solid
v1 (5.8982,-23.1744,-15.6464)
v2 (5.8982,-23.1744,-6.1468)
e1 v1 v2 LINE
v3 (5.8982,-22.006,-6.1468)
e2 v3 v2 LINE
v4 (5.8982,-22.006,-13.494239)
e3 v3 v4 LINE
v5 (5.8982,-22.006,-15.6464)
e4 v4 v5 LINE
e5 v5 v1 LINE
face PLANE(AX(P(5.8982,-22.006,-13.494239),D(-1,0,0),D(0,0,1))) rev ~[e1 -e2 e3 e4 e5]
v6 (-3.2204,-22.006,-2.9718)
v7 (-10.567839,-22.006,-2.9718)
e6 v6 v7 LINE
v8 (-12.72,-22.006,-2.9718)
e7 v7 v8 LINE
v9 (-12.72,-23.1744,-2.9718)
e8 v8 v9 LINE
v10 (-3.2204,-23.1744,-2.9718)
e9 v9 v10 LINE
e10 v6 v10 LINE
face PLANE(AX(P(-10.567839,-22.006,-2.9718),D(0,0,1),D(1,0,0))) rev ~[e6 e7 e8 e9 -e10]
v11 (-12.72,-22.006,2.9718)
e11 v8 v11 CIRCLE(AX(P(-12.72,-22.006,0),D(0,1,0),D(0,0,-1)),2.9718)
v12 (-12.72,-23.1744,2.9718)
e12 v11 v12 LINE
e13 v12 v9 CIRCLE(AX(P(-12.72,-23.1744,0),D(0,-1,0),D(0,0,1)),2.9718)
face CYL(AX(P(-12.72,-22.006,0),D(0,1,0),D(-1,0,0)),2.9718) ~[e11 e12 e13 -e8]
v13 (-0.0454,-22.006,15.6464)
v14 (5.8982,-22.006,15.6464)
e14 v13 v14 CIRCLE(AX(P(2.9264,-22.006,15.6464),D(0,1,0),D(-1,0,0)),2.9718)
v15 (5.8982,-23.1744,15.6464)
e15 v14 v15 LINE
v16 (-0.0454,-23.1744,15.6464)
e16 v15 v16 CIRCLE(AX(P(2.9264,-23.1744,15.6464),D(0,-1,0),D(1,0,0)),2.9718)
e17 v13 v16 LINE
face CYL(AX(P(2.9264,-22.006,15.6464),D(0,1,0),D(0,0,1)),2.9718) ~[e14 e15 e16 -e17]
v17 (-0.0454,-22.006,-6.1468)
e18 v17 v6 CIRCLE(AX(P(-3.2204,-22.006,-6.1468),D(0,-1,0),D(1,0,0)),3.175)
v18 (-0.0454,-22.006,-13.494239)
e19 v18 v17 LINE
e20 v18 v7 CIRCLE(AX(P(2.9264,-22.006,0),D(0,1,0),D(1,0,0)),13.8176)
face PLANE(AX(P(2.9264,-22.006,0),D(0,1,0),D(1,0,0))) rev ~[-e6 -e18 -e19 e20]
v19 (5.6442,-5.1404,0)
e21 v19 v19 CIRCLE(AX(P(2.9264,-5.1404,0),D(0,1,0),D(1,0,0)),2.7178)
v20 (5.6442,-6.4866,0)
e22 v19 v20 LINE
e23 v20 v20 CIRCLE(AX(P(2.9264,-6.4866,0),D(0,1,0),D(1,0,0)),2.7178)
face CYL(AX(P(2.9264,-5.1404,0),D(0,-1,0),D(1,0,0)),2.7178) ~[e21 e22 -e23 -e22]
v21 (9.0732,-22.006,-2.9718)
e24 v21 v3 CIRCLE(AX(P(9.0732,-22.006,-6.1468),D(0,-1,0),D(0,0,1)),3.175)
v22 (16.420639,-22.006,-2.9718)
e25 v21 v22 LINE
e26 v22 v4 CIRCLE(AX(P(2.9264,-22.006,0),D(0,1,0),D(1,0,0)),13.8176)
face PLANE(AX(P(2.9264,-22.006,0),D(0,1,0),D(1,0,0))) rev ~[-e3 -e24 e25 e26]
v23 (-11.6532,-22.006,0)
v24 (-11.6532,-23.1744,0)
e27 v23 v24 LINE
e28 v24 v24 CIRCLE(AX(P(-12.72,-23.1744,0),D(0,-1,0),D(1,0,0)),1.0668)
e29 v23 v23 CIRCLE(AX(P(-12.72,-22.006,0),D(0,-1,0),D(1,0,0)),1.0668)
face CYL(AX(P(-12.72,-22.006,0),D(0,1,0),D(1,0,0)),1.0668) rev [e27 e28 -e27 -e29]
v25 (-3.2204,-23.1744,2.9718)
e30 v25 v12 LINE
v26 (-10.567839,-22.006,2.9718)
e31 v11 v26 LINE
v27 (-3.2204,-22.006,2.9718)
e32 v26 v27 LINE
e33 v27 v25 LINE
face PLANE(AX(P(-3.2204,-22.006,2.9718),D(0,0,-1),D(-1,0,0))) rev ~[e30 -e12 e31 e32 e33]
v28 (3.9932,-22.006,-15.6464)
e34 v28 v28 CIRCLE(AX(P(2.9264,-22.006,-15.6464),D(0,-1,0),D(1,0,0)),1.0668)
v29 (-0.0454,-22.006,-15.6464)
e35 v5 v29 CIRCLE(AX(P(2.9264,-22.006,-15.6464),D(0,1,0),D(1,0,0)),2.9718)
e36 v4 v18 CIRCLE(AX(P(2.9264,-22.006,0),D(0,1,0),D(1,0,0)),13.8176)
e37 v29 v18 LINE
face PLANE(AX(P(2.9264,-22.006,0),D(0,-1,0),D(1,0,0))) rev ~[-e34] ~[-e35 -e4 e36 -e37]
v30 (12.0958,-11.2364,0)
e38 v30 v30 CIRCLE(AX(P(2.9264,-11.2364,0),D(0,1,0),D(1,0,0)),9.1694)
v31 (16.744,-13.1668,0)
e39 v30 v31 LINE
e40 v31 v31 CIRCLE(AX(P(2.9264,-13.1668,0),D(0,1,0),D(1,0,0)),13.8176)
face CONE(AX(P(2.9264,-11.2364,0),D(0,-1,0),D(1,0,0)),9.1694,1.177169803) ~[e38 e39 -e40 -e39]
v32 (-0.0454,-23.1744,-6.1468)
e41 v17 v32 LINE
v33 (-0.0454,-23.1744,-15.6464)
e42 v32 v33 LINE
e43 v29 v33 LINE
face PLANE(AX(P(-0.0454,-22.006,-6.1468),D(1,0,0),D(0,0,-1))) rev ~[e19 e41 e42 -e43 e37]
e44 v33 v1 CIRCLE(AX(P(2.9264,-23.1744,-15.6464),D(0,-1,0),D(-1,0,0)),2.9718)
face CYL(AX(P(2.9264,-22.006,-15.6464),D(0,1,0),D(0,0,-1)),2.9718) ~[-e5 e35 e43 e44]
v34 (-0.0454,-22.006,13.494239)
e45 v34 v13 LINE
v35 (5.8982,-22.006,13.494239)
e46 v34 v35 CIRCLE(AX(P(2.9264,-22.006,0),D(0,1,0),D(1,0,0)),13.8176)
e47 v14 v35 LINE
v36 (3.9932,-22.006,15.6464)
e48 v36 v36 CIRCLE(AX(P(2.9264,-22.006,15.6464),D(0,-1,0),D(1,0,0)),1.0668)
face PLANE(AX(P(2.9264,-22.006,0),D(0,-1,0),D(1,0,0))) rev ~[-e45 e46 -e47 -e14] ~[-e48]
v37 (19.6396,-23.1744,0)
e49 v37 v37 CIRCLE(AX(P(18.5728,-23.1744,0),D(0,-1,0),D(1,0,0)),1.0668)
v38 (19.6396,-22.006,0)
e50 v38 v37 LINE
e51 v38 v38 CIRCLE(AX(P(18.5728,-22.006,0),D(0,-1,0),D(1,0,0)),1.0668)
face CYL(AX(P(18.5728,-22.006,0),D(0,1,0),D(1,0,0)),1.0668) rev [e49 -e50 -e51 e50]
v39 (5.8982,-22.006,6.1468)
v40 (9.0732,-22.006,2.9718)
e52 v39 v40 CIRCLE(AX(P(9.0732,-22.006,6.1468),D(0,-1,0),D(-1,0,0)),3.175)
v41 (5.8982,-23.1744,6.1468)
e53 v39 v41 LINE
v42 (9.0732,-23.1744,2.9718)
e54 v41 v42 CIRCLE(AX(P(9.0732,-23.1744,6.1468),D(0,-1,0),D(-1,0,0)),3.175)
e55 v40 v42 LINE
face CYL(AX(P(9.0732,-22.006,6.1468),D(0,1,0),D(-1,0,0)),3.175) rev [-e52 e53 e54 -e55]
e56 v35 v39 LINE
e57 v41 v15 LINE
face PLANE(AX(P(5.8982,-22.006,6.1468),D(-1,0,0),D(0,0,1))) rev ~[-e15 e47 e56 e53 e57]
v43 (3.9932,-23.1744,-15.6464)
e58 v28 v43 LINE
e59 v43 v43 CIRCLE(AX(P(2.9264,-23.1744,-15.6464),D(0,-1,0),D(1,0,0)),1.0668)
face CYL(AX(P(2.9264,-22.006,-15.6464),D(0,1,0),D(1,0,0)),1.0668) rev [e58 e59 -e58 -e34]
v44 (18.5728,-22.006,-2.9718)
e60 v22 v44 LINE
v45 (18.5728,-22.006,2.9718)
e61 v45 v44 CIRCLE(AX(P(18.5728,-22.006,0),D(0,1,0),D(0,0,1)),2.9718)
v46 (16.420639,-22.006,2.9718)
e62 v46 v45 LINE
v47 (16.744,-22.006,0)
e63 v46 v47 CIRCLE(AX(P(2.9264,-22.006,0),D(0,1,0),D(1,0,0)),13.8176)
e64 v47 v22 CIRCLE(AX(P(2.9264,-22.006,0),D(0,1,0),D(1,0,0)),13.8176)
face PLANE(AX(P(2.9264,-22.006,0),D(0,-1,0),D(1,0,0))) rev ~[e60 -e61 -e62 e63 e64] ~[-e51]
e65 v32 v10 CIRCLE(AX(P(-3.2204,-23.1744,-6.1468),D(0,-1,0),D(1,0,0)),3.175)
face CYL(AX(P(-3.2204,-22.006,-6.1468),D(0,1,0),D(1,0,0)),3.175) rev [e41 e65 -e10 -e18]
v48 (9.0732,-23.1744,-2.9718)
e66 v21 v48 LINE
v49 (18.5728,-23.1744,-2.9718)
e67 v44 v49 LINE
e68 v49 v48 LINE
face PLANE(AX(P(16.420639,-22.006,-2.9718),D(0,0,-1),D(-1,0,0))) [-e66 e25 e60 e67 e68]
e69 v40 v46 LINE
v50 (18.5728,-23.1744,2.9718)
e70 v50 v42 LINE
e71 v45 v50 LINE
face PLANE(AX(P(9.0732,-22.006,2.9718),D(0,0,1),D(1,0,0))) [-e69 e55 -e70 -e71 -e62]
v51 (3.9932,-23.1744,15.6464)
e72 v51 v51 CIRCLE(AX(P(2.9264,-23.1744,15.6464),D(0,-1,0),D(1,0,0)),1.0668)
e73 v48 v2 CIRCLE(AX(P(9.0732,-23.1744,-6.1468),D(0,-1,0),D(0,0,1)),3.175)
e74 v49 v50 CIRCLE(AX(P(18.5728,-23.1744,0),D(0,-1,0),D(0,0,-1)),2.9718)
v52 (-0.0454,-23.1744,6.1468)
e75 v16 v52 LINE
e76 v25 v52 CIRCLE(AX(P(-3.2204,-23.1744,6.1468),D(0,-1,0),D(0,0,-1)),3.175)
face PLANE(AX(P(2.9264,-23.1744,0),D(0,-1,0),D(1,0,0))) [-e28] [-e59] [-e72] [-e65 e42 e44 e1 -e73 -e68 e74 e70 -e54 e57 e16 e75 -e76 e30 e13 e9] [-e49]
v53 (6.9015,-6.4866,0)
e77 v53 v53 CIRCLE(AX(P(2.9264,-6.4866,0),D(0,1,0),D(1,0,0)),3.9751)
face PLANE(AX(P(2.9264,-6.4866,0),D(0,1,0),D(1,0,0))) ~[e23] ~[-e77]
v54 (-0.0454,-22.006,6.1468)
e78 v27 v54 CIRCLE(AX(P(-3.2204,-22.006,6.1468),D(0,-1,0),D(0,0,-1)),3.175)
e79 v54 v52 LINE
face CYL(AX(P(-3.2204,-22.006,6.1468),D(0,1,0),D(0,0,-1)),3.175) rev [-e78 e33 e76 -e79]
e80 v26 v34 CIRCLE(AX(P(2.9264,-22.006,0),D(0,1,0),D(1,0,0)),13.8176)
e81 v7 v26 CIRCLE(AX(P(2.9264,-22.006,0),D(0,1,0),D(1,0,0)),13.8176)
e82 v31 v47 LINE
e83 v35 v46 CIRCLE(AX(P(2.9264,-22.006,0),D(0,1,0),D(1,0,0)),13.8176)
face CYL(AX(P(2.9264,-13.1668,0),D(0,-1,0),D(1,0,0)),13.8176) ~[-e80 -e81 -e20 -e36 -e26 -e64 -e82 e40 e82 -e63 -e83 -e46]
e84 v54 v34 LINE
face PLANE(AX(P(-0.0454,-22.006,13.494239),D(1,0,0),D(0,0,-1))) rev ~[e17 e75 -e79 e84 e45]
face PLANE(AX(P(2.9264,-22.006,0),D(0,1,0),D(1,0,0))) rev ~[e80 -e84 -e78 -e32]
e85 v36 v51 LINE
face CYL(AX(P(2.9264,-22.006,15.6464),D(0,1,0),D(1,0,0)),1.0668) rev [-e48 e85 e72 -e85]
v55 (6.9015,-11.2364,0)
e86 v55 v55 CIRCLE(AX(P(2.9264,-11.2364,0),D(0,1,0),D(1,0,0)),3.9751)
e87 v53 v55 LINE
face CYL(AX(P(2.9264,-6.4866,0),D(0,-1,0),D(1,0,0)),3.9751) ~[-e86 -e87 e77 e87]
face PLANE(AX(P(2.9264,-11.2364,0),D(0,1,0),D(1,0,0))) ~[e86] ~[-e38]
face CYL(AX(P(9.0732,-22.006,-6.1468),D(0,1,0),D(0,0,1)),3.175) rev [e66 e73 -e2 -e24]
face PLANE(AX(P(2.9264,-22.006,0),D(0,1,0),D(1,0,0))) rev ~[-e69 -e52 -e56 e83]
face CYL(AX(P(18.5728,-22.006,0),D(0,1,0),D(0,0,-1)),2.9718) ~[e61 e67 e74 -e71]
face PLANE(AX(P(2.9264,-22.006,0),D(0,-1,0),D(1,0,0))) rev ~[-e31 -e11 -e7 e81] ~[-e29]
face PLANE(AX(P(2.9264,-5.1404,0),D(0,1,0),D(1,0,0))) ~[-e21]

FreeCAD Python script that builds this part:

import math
import FreeCAD as App
import Part
import Sketcher
from FreeCAD import Vector
Q = App.Units.Quantity


def add_polygon(sketch, points):
    """Adds a closed chain of lines whose ends are joined by coincident constraints."""
    first, n = sketch.GeometryCount, len(points)
    for a, b in zip(points, points[1:] + points[:1]):
        sketch.addGeometry(Part.LineSegment(App.Vector(*a, 0), App.Vector(*b, 0)), False)
    for i in range(n):
        sketch.addConstraint(Sketcher.Constraint("Coincident", first + i, 2, first + (i + 1) % n, 1))

doc = App.newDocument("Part")
body = doc.addObject("PartDesign::Body", "Body")

# Sketch on XY plane
sketch1 = body.newObject("Sketcher::SketchObject", "Sketch")
sketch1.AttachmentSupport = (doc.getObject("XY_Plane"), [""])
sketch1.MapMode = "FlatFace"
add_polygon(sketch1, [(5.6, -5.1), (2.9, -5.1), (2.9, -22), (16.7, -22), (16.7, -13.2), (12.1, -11.2), (6.9, -11.2), (6.9, -6.5), (5.6, -6.5)])  # lines 0-8
sketch1.addGeometry(Part.LineSegment(Vector(2.9, -22, 0), Vector(2.9, -5.1, 0)), True)  # axis
sketch1.addConstraint([
    Sketcher.Constraint("Horizontal", 0),
    Sketcher.Constraint("Vertical", 1),
    Sketcher.Constraint("Horizontal", 2),
    Sketcher.Constraint("Vertical", 3),
    Sketcher.Constraint("Horizontal", 5),
    Sketcher.Constraint("Vertical", 6),
    Sketcher.Constraint("Horizontal", 7),
    Sketcher.Constraint("Vertical", 8),
    Sketcher.Constraint("Vertical", 9),
    Sketcher.Constraint("Coincident", 9, 1, 1, 2),
    Sketcher.Constraint("Horizontal", 8, 2, 9, 2),
    Sketcher.Constraint("DistanceX", 0, 2, 0, 1, Q("0.107 in")),
    Sketcher.Constraint("DistanceX", 2, 1, 2, 2, Q("0.544 in")),
    Sketcher.Constraint("DistanceY", 1, 2, 1, 1, Q("0.664 in")),
    Sketcher.Constraint("DistanceY", 3, 1, 3, 2, Q("0.348 in")),
    Sketcher.Constraint("DistanceY", 8, 1, 8, 2, Q("0.053 in")),
    Sketcher.Constraint("DistanceX", 4, 2, 3, 2, Q("0.183 in")),
    Sketcher.Constraint("DistanceY", 2, 2, 4, 2, Q("0.424 in")),
    Sketcher.Constraint("DistanceX", 0, 2, 5, 2, Q("0.1565 in")),
    Sketcher.Constraint("DistanceX", -1, 1, 0, 2, Q("2.9264 mm")),
    Sketcher.Constraint("DistanceY", 0, 2, -1, 1, Q("5.1404 mm")),
])
revolution = body.newObject("PartDesign::Revolution", "Revolution")
revolution.Profile = sketch1
revolution.ReferenceAxis = (sketch1, ["Axis0"])
revolution.Angle = 360

# Sketch on XZ plane
sketch2 = body.newObject("Sketcher::SketchObject", "Sketch001")
sketch2.AttachmentSupport = (doc.getObject("XZ_Plane"), [""])
sketch2.MapMode = "FlatFace"
sketch2.AttachmentOffset = App.Placement(Vector(0, 0, 22.006), App.Rotation())
sketch2.addGeometry([
    Part.LineSegment(Vector(9.1, -3, 0), Vector(18.6, -3, 0)),  # 0
    Part.ArcOfCircle(Part.Circle(Vector(18.6, 0, 0), Vector(0, 0, 1), 3), math.radians(-90), math.radians(90)),  # 1
    Part.LineSegment(Vector(18.6, 3, 0), Vector(9.1, 3, 0)),  # 2
    Part.ArcOfCircle(Part.Circle(Vector(9.1, 6.1, 0), Vector(0, 0, 1), 3.2), math.radians(180), math.radians(270)),  # 3
    Part.LineSegment(Vector(5.9, 6.1, 0), Vector(5.9, 15.6, 0)),  # 4
    Part.ArcOfCircle(Part.Circle(Vector(2.9, 15.6, 0), Vector(0, 0, 1), 3), math.radians(0), math.radians(180)),  # 5
    Part.LineSegment(Vector(0, 15.6, 0), Vector(0, 6.1, 0)),  # 6
    Part.ArcOfCircle(Part.Circle(Vector(-3.2, 6.1, 0), Vector(0, 0, 1), 3.2), math.radians(-90), math.radians(0)),  # 7
    Part.LineSegment(Vector(-3.2, 3, 0), Vector(-12.7, 3, 0)),  # 8
    Part.ArcOfCircle(Part.Circle(Vector(-12.7, 0, 0), Vector(0, 0, 1), 3), math.radians(90), math.radians(270)),  # 9
    Part.LineSegment(Vector(-12.7, -3, 0), Vector(-3.2, -3, 0)),  # 10
    Part.ArcOfCircle(Part.Circle(Vector(-3.2, -6.1, 0), Vector(0, 0, 1), 3.2), math.radians(0), math.radians(90)),  # 11
    Part.LineSegment(Vector(0, -6.1, 0), Vector(0, -15.6, 0)),  # 12
    Part.ArcOfCircle(Part.Circle(Vector(2.9, -15.6, 0), Vector(0, 0, 1), 3), math.radians(180), math.radians(360)),  # 13
    Part.LineSegment(Vector(5.9, -15.6, 0), Vector(5.9, -6.1, 0)),  # 14
    Part.ArcOfCircle(Part.Circle(Vector(9.1, -6.1, 0), Vector(0, 0, 1), 3.2), math.radians(90), math.radians(180)),  # 15
    Part.Circle(Vector(18.6, 0, 0), Vector(0, 0, 1), 1.1),  # 16
    Part.Circle(Vector(2.9, -15.6, 0), Vector(0, 0, 1), 1.1),  # 17
    Part.Circle(Vector(-12.7, 0, 0), Vector(0, 0, 1), 1.1),  # 18
    Part.Circle(Vector(2.9, 15.6, 0), Vector(0, 0, 1), 1.1),  # 19
], False)
sketch2.addConstraint([
    Sketcher.Constraint("Tangent", 0, 2, 1, 1),
    Sketcher.Constraint("Tangent", 1, 2, 2, 1),
    Sketcher.Constraint("Tangent", 2, 2, 3, 2),
    Sketcher.Constraint("Tangent", 3, 1, 4, 1),
    Sketcher.Constraint("Tangent", 4, 2, 5, 1),
    Sketcher.Constraint("Tangent", 5, 2, 6, 1),
    Sketcher.Constraint("Tangent", 6, 2, 7, 2),
    Sketcher.Constraint("Tangent", 7, 1, 8, 1),
    Sketcher.Constraint("Tangent", 8, 2, 9, 1),
    Sketcher.Constraint("Tangent", 9, 2, 10, 1),
    Sketcher.Constraint("Tangent", 10, 2, 11, 2),
    Sketcher.Constraint("Tangent", 11, 1, 12, 1),
    Sketcher.Constraint("Tangent", 12, 2, 13, 1),
    Sketcher.Constraint("Tangent", 13, 2, 14, 1),
    Sketcher.Constraint("Tangent", 14, 2, 15, 2),
    Sketcher.Constraint("Tangent", 15, 1, 0, 1),
    Sketcher.Constraint("Horizontal", 0),
    Sketcher.Constraint("Horizontal", 2),
    Sketcher.Constraint("Vertical", 4),
    Sketcher.Constraint("Vertical", 6),
    Sketcher.Constraint("Horizontal", 8),
    Sketcher.Constraint("Horizontal", 10),
    Sketcher.Constraint("Vertical", 12),
    Sketcher.Constraint("Vertical", 14),
    Sketcher.Constraint("Coincident", 16, 3, 1, 3),
    Sketcher.Constraint("Coincident", 17, 3, 13, 3),
    Sketcher.Constraint("Coincident", 18, 3, 9, 3),
    Sketcher.Constraint("Coincident", 19, 3, 5, 3),
    Sketcher.Constraint("Equal", 1, 5),
    Sketcher.Constraint("Equal", 3, 7),
    Sketcher.Constraint("Equal", 5, 9),
    Sketcher.Constraint("Equal", 7, 11),
    Sketcher.Constraint("Equal", 9, 13),
    Sketcher.Constraint("Equal", 11, 15),
    Sketcher.Constraint("Equal", 16, 17),
    Sketcher.Constraint("Equal", 17, 18),
    Sketcher.Constraint("Equal", 18, 19),
    Sketcher.Constraint("Symmetric", 7, 3, 11, 3, -1),
    Sketcher.Constraint("PointOnObject", 1, 3, -1),
    Sketcher.Constraint("Equal", 2, 8),
    Sketcher.Constraint("Equal", 10, 4),
    Sketcher.Constraint("Equal", 6, 12),
    Sketcher.Constraint("Diameter", 16, Q("0.084 in")),
    Sketcher.Constraint("Radius", 1, Q("0.117 in")),
    Sketcher.Constraint("Radius", 3, Q("0.125 in")),
    Sketcher.Constraint("DistanceY", -1, 1, 5, 3, Q("0.616 in")),
    Sketcher.Constraint("DistanceX", -1, 1, 1, 3, Q("18.5728 mm")),
])
pad1 = body.newObject("PartDesign::Pad", "Pad")
pad1.Profile = sketch2
pad1.Length = Q("0.046 in")

doc.recompute()
